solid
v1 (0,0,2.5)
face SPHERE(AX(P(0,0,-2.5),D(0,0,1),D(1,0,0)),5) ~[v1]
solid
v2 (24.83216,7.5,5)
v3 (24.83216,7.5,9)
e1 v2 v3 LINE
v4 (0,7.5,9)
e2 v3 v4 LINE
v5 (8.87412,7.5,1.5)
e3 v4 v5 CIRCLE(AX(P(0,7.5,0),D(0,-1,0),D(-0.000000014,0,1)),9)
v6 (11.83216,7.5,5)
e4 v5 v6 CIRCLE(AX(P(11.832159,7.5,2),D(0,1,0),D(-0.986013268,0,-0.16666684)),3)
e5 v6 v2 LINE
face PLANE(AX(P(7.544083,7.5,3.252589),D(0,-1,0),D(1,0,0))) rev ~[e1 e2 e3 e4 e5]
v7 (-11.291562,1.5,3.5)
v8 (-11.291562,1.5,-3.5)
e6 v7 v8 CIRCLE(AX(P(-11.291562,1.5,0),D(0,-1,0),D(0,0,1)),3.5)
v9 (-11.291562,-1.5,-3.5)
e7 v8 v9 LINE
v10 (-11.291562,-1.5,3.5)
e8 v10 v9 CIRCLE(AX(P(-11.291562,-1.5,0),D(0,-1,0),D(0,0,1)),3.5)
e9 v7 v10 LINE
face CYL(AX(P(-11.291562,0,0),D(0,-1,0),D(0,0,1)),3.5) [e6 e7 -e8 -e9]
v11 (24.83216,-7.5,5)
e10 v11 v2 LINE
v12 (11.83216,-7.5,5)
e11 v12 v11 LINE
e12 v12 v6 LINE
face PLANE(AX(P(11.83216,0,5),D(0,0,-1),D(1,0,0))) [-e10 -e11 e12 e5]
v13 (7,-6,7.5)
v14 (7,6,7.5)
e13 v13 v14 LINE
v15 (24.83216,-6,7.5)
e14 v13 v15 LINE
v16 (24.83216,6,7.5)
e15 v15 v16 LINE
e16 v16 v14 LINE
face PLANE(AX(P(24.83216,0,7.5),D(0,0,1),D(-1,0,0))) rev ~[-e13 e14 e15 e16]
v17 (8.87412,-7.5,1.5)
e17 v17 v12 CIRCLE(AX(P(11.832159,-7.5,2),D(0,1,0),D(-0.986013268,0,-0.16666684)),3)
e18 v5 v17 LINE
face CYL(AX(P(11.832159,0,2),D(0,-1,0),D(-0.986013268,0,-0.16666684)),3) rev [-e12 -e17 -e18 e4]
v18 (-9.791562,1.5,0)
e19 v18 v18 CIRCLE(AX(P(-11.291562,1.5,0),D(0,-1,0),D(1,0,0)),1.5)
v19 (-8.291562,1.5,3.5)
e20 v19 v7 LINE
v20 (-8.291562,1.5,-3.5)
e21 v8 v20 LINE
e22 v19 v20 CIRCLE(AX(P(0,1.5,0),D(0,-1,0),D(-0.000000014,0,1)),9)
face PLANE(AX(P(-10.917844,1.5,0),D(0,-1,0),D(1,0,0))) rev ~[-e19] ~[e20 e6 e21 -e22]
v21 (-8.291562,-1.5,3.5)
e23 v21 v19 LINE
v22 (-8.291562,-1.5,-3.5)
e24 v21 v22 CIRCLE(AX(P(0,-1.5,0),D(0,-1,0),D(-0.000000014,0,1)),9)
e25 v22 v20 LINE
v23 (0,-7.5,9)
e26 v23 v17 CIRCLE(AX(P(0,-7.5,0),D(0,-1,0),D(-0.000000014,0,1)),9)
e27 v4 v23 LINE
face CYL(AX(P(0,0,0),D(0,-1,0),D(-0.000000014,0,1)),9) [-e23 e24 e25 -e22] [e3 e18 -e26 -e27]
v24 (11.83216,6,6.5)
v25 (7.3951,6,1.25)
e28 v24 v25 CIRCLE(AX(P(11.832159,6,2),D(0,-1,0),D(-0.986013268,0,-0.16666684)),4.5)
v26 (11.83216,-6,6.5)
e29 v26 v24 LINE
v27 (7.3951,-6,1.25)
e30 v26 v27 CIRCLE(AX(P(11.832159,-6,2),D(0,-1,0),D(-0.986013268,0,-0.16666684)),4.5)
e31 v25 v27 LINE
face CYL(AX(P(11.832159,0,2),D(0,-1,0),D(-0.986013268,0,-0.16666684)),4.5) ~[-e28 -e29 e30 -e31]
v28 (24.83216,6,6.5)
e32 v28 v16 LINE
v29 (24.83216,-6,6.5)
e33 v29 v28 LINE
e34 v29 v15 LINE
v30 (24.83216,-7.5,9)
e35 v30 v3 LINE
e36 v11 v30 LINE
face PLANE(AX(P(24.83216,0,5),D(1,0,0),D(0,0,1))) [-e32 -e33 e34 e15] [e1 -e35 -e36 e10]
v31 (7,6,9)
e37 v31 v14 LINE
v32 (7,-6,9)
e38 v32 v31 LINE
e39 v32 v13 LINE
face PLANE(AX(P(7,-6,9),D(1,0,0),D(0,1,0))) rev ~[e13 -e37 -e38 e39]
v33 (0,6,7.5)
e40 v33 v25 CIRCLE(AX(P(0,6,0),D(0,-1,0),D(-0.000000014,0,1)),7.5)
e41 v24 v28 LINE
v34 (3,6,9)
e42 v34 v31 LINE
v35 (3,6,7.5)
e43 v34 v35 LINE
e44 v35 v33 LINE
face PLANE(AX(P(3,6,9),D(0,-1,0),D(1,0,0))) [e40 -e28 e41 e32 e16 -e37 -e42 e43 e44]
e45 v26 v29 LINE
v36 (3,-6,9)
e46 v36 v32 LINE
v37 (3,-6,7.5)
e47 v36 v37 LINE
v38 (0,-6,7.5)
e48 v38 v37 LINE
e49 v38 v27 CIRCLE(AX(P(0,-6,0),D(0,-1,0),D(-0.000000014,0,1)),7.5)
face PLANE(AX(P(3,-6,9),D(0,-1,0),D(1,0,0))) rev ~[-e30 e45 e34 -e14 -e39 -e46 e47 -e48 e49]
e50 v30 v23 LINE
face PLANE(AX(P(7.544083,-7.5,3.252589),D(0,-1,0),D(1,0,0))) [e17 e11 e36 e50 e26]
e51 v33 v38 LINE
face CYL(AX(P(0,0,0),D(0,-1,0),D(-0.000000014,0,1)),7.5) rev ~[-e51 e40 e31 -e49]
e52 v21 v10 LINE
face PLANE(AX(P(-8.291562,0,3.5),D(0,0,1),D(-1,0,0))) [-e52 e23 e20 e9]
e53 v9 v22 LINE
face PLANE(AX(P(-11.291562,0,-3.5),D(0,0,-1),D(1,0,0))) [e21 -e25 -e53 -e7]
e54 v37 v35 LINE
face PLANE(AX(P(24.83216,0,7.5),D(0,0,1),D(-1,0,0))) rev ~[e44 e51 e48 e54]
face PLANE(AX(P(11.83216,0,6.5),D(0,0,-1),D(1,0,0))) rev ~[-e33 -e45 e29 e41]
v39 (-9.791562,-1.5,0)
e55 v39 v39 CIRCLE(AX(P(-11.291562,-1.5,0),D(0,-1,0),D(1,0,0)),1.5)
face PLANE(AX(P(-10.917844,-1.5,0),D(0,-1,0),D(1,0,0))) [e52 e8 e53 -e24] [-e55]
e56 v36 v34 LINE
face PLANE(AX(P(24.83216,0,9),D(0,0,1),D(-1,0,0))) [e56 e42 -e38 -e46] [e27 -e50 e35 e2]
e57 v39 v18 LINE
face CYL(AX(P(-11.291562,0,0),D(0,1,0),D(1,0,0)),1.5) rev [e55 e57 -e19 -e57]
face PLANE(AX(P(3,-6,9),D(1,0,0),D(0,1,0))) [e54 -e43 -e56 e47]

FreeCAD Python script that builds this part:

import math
import FreeCAD as App
import Part
import Sketcher
from FreeCAD import Vector
Q = App.Units.Quantity


def faces_at(feature, points):
    """Names of the faces that lie closest to the given points."""
    faces = feature.Shape.Faces
    near = lambda p: min(range(len(faces)), key=lambda i: faces[i].distToShape(Part.Vertex(*p))[0])
    return sorted({f"Face{near(p) + 1}" for p in points})


def add_polygon(sketch, points):
    """Adds a closed chain of lines whose ends are joined by coincident constraints."""
    first, n = sketch.GeometryCount, len(points)
    for a, b in zip(points, points[1:] + points[:1]):
        sketch.addGeometry(Part.LineSegment(App.Vector(*a, 0), App.Vector(*b, 0)), False)
    for i in range(n):
        sketch.addConstraint(Sketcher.Constraint("Coincident", first + i, 2, first + (i + 1) % n, 1))

doc = App.newDocument("Part")
body = doc.addObject("PartDesign::Body", "Body")

# Sketch on XZ plane
sketch1 = body.newObject("Sketcher::SketchObject", "Sketch")
sketch1.AttachmentSupport = (doc.getObject("XZ_Plane"), [""])
sketch1.MapMode = "FlatFace"
sketch1.addGeometry(Part.LineSegment(Vector(24.8, 9, 0), Vector(0, 9, 0)), False)
sketch1.addGeometry(Part.ArcOfCircle(Part.Circle(Vector(0, 0, 0), Vector(0, 0, 1), 9), math.radians(90), math.radians(370)), False)
sketch1.addGeometry(Part.ArcOfCircle(Part.Circle(Vector(11.8, 2, 0), Vector(0, 0, 1), 3), math.radians(90), math.radians(190)), False)
sketch1.addGeometry(Part.LineSegment(Vector(11.8, 5, 0), Vector(24.8, 5, 0)), False)
sketch1.addGeometry(Part.LineSegment(Vector(24.8, 5, 0), Vector(24.8, 9, 0)), False)
sketch1.addConstraint(Sketcher.Constraint("Tangent", 0, 2, 1, 1))
sketch1.addConstraint(Sketcher.Constraint("Tangent", 1, 2, 2, 2))
sketch1.addConstraint(Sketcher.Constraint("Tangent", 2, 1, 3, 1))
sketch1.addConstraint(Sketcher.Constraint("Coincident", 3, 2, 4, 1))
sketch1.addConstraint(Sketcher.Constraint("Coincident", 4, 2, 0, 1))
sketch1.addConstraint(Sketcher.Constraint("Horizontal", 0))
sketch1.addConstraint(Sketcher.Constraint("Horizontal", 3))
sketch1.addConstraint(Sketcher.Constraint("Vertical", 4))
sketch1.addConstraint(Sketcher.Constraint("Coincident", 1, 3, -1, 1))
sketch1.addConstraint(Sketcher.Constraint("Radius", 1, Q("9 mm")))
sketch1.addConstraint(Sketcher.Constraint("Radius", 2, Q("3 mm")))
sketch1.addConstraint(Sketcher.Constraint("DistanceX", 3, 1, 3, 2, Q("13 mm")))
sketch1.addConstraint(Sketcher.Constraint("DistanceY", 4, 1, 4, 2, Q("4 mm")))
pad1 = body.newObject("PartDesign::Pad", "Pad")
pad1.Profile = sketch1
pad1.Length = 15
pad1.Midplane = True
doc.recompute()

thickness = body.newObject("PartDesign::Thickness", "Thickness")
thickness.Base = (pad1, faces_at(pad1, [(24.832, 0, 7)]))
thickness.Value = 1.5
thickness.Reversed = True
thickness.Join = "Arc"

# Sketch on XY plane
sketch2 = body.newObject("Sketcher::SketchObject", "Sketch001")
sketch2.AttachmentSupport = (doc.getObject("XY_Plane"), [""])
sketch2.MapMode = "FlatFace"
sketch2.AttachmentOffset = App.Placement(Vector(0, 0, 9), App.Rotation())
add_polygon(sketch2, [(3, 6), (3, -6), (7, -6), (7, 6)])  # lines 0-3
sketch2.addConstraint(Sketcher.Constraint("Vertical", 0))
sketch2.addConstraint(Sketcher.Constraint("Horizontal", 1))
sketch2.addConstraint(Sketcher.Constraint("Vertical", 2))
sketch2.addConstraint(Sketcher.Constraint("Horizontal", 3))
sketch2.addConstraint(Sketcher.Constraint("DistanceX", 1, 1, 1, 2, Q("4 mm")))
sketch2.addConstraint(Sketcher.Constraint("DistanceY", 0, 2, 0, 1, Q("12 mm")))
sketch2.addConstraint(Sketcher.Constraint("DistanceX", -1, 1, 0, 2, Q("3 mm")))
sketch2.addConstraint(Sketcher.Constraint("DistanceY", 0, 2, -1, 1, Q("6 mm")))
pocket1 = body.newObject("PartDesign::Pocket", "Pocket")
pocket1.Profile = sketch2
pocket1.Length = 1.5

# Sketch on XZ plane
sketch3 = body.newObject("Sketcher::SketchObject", "Sketch002")
sketch3.AttachmentSupport = (doc.getObject("XZ_Plane"), [""])
sketch3.MapMode = "FlatFace"
sketch3.addGeometry(Part.LineSegment(Vector(-8.3, 3.5, 0), Vector(-11.3, 3.5, 0)), False)
sketch3.addGeometry(Part.ArcOfCircle(Part.Circle(Vector(-11.3, 0, 0), Vector(0, 0, 1), 3.5), math.radians(90), math.radians(270)), False)
sketch3.addGeometry(Part.LineSegment(Vector(-11.3, -3.5, 0), Vector(-8.3, -3.5, 0)), False)
sketch3.addGeometry(Part.LineSegment(Vector(-8.3, -3.5, 0), Vector(-8.3, 3.5, 0)), False)
sketch3.addGeometry(Part.Circle(Vector(-11.3, 0, 0), Vector(0, 0, 1), 1.5), False)
sketch3.addConstraint(Sketcher.Constraint("Tangent", 0, 2, 1, 1))
sketch3.addConstraint(Sketcher.Constraint("Tangent", 1, 2, 2, 1))
sketch3.addConstraint(Sketcher.Constraint("Coincident", 2, 2, 3, 1))
sketch3.addConstraint(Sketcher.Constraint("Coincident", 3, 2, 0, 1))
sketch3.addConstraint(Sketcher.Constraint("Horizontal", 0))
sketch3.addConstraint(Sketcher.Constraint("Horizontal", 2))
sketch3.addConstraint(Sketcher.Constraint("Vertical", 3))
sketch3.addConstraint(Sketcher.Constraint("Coincident", 4, 3, 1, 3))
sketch3.addConstraint(Sketcher.Constraint("PointOnObject", 1, 3, -1))
sketch3.addConstraint(Sketcher.Constraint("Diameter", 4, Q("3 mm")))
sketch3.addConstraint(Sketcher.Constraint("Radius", 1, Q("3.5 mm")))
sketch3.addConstraint(Sketcher.Constraint("DistanceX", 0, 2, 0, 1, Q("3 mm")))
sketch3.addConstraint(Sketcher.Constraint("DistanceX", 1, 3, -1, 1, Q("11.291562 mm")))
pad2 = body.newObject("PartDesign::Pad", "Pad001")
pad2.Profile = sketch3
pad2.Length = 3
pad2.Midplane = True
body2 = doc.addObject("PartDesign::Body", "Body001")

# Sketch on XZ plane
sketch4 = body2.newObject("Sketcher::SketchObject", "Sketch003")
sketch4.AttachmentSupport = (doc.getObject("XZ_Plane001"), [""])
sketch4.MapMode = "FlatFace"
sketch4.addGeometry(Part.ArcOfCircle(Part.Circle(Vector(0, -2, 0), Vector(0, 0, 1), 5), math.radians(-90), math.radians(90)), False)
sketch4.addGeometry(Part.LineSegment(Vector(0, 2, 0), Vector(0, -8, 0)), False)
sketch4.addConstraint(Sketcher.Constraint("Coincident", 0, 1, 1, 2))
sketch4.addConstraint(Sketcher.Constraint("Coincident", 1, 1, 0, 2))
sketch4.addConstraint(Sketcher.Constraint("Vertical", 1))
sketch4.addConstraint(Sketcher.Constraint("PointOnObject", 0, 3, -2))
sketch4.addConstraint(Sketcher.Constraint("PointOnObject", 0, 1, -2))
sketch4.addConstraint(Sketcher.Constraint("Radius", 0, Q("5 mm")))
sketch4.addConstraint(Sketcher.Constraint("DistanceY", 0, 3, -1, 1, Q("2.5 mm")))
revolution = body2.newObject("PartDesign::Revolution", "Revolution")
revolution.Profile = sketch4
revolution.ReferenceAxis = (sketch4, ["V_Axis"])
revolution.Angle = 360

doc.recompute()
